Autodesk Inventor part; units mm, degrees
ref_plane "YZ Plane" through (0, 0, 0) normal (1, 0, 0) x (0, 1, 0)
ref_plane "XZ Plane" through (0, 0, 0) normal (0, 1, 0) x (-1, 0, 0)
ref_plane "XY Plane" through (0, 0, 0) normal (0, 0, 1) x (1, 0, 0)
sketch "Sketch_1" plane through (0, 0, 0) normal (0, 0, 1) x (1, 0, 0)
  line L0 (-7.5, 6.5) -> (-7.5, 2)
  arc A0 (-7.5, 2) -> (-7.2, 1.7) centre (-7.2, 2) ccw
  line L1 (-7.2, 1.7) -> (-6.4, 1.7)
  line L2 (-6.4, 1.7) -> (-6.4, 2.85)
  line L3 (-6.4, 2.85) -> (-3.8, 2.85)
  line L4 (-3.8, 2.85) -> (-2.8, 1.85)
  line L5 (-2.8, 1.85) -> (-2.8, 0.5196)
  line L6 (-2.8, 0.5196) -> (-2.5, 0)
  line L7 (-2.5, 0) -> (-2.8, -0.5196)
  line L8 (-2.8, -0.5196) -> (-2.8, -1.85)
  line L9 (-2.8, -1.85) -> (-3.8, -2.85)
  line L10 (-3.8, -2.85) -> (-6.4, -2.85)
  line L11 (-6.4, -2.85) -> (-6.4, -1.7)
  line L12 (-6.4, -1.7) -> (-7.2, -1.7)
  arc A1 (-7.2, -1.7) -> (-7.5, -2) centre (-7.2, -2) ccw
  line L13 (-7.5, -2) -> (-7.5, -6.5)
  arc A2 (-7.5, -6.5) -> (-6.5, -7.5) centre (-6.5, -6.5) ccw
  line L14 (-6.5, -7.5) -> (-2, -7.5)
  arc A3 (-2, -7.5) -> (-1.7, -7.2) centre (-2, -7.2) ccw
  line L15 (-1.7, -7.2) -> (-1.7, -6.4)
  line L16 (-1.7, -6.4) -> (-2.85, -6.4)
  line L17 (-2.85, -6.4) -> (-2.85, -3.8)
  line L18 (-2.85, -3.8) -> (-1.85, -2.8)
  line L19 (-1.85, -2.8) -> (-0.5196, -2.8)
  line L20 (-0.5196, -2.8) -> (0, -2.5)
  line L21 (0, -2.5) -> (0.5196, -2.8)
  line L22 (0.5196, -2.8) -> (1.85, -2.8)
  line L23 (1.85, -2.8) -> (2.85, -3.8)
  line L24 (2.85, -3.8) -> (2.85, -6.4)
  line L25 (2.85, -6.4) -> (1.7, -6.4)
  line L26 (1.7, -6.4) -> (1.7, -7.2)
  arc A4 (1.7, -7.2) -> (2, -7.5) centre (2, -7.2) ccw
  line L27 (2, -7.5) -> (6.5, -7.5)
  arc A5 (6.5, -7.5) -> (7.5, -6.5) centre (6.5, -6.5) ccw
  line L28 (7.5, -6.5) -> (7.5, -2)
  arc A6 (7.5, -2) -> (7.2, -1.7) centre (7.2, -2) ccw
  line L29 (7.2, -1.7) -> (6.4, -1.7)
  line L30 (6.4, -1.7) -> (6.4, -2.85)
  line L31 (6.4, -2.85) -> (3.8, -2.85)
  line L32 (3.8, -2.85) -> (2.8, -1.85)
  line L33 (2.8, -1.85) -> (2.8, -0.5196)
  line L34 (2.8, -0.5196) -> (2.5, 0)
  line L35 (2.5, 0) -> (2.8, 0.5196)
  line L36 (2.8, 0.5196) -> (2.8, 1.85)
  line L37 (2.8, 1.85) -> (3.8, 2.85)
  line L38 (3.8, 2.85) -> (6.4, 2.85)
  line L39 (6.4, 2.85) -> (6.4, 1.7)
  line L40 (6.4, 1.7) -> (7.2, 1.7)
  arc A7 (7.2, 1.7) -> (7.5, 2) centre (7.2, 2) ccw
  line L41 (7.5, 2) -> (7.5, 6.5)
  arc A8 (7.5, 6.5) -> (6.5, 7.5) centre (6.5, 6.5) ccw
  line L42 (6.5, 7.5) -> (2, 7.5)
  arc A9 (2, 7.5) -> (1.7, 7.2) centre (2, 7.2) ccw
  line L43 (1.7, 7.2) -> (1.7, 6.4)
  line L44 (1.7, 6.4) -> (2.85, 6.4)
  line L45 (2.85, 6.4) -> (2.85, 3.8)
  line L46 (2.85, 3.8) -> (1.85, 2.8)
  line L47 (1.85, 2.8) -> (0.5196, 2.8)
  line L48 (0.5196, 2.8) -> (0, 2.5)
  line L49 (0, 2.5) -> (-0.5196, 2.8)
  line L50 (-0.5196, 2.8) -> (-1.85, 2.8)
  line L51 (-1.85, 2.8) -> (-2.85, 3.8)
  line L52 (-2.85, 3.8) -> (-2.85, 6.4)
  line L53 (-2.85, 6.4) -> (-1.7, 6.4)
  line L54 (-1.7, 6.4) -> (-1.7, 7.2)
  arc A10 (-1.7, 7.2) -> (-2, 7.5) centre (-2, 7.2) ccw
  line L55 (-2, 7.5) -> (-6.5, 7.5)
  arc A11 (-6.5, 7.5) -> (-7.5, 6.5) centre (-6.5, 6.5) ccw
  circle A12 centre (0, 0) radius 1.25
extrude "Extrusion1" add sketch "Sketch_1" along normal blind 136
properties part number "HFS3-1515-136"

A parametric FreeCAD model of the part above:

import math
import FreeCAD as App
import Part
import Sketcher
Q = App.Units.Quantity

doc = App.newDocument("Part")
body = doc.addObject("PartDesign::Body", "Body")

# Sketch on XY plane
sketch1 = body.newObject("Sketcher::SketchObject", "Sketch")
sketch1.AttachmentSupport = (doc.getObject("XY_Plane"), [""])
sketch1.MapMode = "FlatFace"
sketch1.addGeometry([
    Part.ArcOfCircle(Part.Circle(App.Vector(-6.5, 6.5, 0), App.Vector(0, 0, 1), 1), math.radians(90), math.radians(180)),  # 0
    Part.LineSegment(App.Vector(-7.5, 6.5, 0), App.Vector(-7.5, 2, 0)),  # 1
    Part.ArcOfCircle(Part.Circle(App.Vector(-7.2, 2, 0), App.Vector(0, 0, 1), 0.3), math.radians(180), math.radians(270)),  # 2
    Part.LineSegment(App.Vector(-7.2, 1.7, 0), App.Vector(-6.4, 1.7, 0)),  # 3
    Part.LineSegment(App.Vector(-6.4, 1.7, 0), App.Vector(-6.4, 2.85, 0)),  # 4
    Part.LineSegment(App.Vector(-6.4, 2.85, 0), App.Vector(-3.8, 2.85, 0)),  # 5
    Part.LineSegment(App.Vector(-3.8, 2.85, 0), App.Vector(-2.8, 1.85, 0)),  # 6
    Part.LineSegment(App.Vector(-2.8, 1.85, 0), App.Vector(-2.8, 0.52, 0)),  # 7
    Part.LineSegment(App.Vector(-2.8, 0.52, 0), App.Vector(-2.5, 0, 0)),  # 8
    Part.LineSegment(App.Vector(-2.5, 0, 0), App.Vector(-2.8, -0.52, 0)),  # 9
    Part.LineSegment(App.Vector(-2.8, -0.52, 0), App.Vector(-2.8, -1.85, 0)),  # 10
    Part.LineSegment(App.Vector(-2.8, -1.85, 0), App.Vector(-3.8, -2.85, 0)),  # 11
    Part.LineSegment(App.Vector(-3.8, -2.85, 0), App.Vector(-6.4, -2.85, 0)),  # 12
    Part.LineSegment(App.Vector(-6.4, -2.85, 0), App.Vector(-6.4, -1.7, 0)),  # 13
    Part.LineSegment(App.Vector(-6.4, -1.7, 0), App.Vector(-7.2, -1.7, 0)),  # 14
    Part.ArcOfCircle(Part.Circle(App.Vector(-7.2, -2, 0), App.Vector(0, 0, 1), 0.3), math.radians(90), math.radians(180)),  # 15
    Part.LineSegment(App.Vector(-7.5, -2, 0), App.Vector(-7.5, -6.5, 0)),  # 16
    Part.ArcOfCircle(Part.Circle(App.Vector(-6.5, -6.5, 0), App.Vector(0, 0, 1), 1), math.radians(180), math.radians(270)),  # 17
    Part.LineSegment(App.Vector(-6.5, -7.5, 0), App.Vector(-2, -7.5, 0)),  # 18
    Part.ArcOfCircle(Part.Circle(App.Vector(-2, -7.2, 0), App.Vector(0, 0, 1), 0.3), math.radians(-90), math.radians(0)),  # 19
    Part.LineSegment(App.Vector(-1.7, -7.2, 0), App.Vector(-1.7, -6.4, 0)),  # 20
    Part.LineSegment(App.Vector(-1.7, -6.4, 0), App.Vector(-2.85, -6.4, 0)),  # 21
    Part.LineSegment(App.Vector(-2.85, -6.4, 0), App.Vector(-2.85, -3.8, 0)),  # 22
    Part.LineSegment(App.Vector(-2.85, -3.8, 0), App.Vector(-1.85, -2.8, 0)),  # 23
    Part.LineSegment(App.Vector(-1.85, -2.8, 0), App.Vector(-0.52, -2.8, 0)),  # 24
    Part.LineSegment(App.Vector(-0.52, -2.8, 0), App.Vector(0, -2.5, 0)),  # 25
    Part.LineSegment(App.Vector(0, -2.5, 0), App.Vector(0.52, -2.8, 0)),  # 26
    Part.LineSegment(App.Vector(0.52, -2.8, 0), App.Vector(1.85, -2.8, 0)),  # 27
    Part.LineSegment(App.Vector(1.85, -2.8, 0), App.Vector(2.85, -3.8, 0)),  # 28
    Part.LineSegment(App.Vector(2.85, -3.8, 0), App.Vector(2.85, -6.4, 0)),  # 29
    Part.LineSegment(App.Vector(2.85, -6.4, 0), App.Vector(1.7, -6.4, 0)),  # 30
    Part.LineSegment(App.Vector(1.7, -6.4, 0), App.Vector(1.7, -7.2, 0)),  # 31
    Part.ArcOfCircle(Part.Circle(App.Vector(2, -7.2, 0), App.Vector(0, 0, 1), 0.3), math.radians(180), math.radians(270)),  # 32
    Part.LineSegment(App.Vector(2, -7.5, 0), App.Vector(6.5, -7.5, 0)),  # 33
    Part.ArcOfCircle(Part.Circle(App.Vector(6.5, -6.5, 0), App.Vector(0, 0, 1), 1), math.radians(-90), math.radians(0)),  # 34
    Part.LineSegment(App.Vector(7.5, -6.5, 0), App.Vector(7.5, -2, 0)),  # 35
    Part.ArcOfCircle(Part.Circle(App.Vector(7.2, -2, 0), App.Vector(0, 0, 1), 0.3), math.radians(0), math.radians(90)),  # 36
    Part.LineSegment(App.Vector(7.2, -1.7, 0), App.Vector(6.4, -1.7, 0)),  # 37
    Part.LineSegment(App.Vector(6.4, -1.7, 0), App.Vector(6.4, -2.85, 0)),  # 38
    Part.LineSegment(App.Vector(6.4, -2.85, 0), App.Vector(3.8, -2.85, 0)),  # 39
    Part.LineSegment(App.Vector(3.8, -2.85, 0), App.Vector(2.8, -1.85, 0)),  # 40
    Part.LineSegment(App.Vector(2.8, -1.85, 0), App.Vector(2.8, -0.52, 0)),  # 41
    Part.LineSegment(App.Vector(2.8, -0.52, 0), App.Vector(2.5, 0, 0)),  # 42
    Part.LineSegment(App.Vector(2.5, 0, 0), App.Vector(2.8, 0.52, 0)),  # 43
    Part.LineSegment(App.Vector(2.8, 0.52, 0), App.Vector(2.8, 1.85, 0)),  # 44
    Part.LineSegment(App.Vector(2.8, 1.85, 0), App.Vector(3.8, 2.85, 0)),  # 45
    Part.LineSegment(App.Vector(3.8, 2.85, 0), App.Vector(6.4, 2.85, 0)),  # 46
    Part.LineSegment(App.Vector(6.4, 2.85, 0), App.Vector(6.4, 1.7, 0)),  # 47
    Part.LineSegment(App.Vector(6.4, 1.7, 0), App.Vector(7.2, 1.7, 0)),  # 48
    Part.ArcOfCircle(Part.Circle(App.Vector(7.2, 2, 0), App.Vector(0, 0, 1), 0.3), math.radians(-90), math.radians(0)),  # 49
    Part.LineSegment(App.Vector(7.5, 2, 0), App.Vector(7.5, 6.5, 0)),  # 50
    Part.ArcOfCircle(Part.Circle(App.Vector(6.5, 6.5, 0), App.Vector(0, 0, 1), 1), math.radians(0), math.radians(90)),  # 51
    Part.LineSegment(App.Vector(6.5, 7.5, 0), App.Vector(2, 7.5, 0)),  # 52
    Part.ArcOfCircle(Part.Circle(App.Vector(2, 7.2, 0), App.Vector(0, 0, 1), 0.3), math.radians(90), math.radians(180)),  # 53
    Part.LineSegment(App.Vector(1.7, 7.2, 0), App.Vector(1.7, 6.4, 0)),  # 54
    Part.LineSegment(App.Vector(1.7, 6.4, 0), App.Vector(2.85, 6.4, 0)),  # 55
    Part.LineSegment(App.Vector(2.85, 6.4, 0), App.Vector(2.85, 3.8, 0)),  # 56
    Part.LineSegment(App.Vector(2.85, 3.8, 0), App.Vector(1.85, 2.8, 0)),  # 57
    Part.LineSegment(App.Vector(1.85, 2.8, 0), App.Vector(0.52, 2.8, 0)),  # 58
    Part.LineSegment(App.Vector(0.52, 2.8, 0), App.Vector(0, 2.5, 0)),  # 59
    Part.LineSegment(App.Vector(0, 2.5, 0), App.Vector(-0.52, 2.8, 0)),  # 60
    Part.LineSegment(App.Vector(-0.52, 2.8, 0), App.Vector(-1.85, 2.8, 0)),  # 61
    Part.LineSegment(App.Vector(-1.85, 2.8, 0), App.Vector(-2.85, 3.8, 0)),  # 62
    Part.LineSegment(App.Vector(-2.85, 3.8, 0), App.Vector(-2.85, 6.4, 0)),  # 63
    Part.LineSegment(App.Vector(-2.85, 6.4, 0), App.Vector(-1.7, 6.4, 0)),  # 64
    Part.LineSegment(App.Vector(-1.7, 6.4, 0), App.Vector(-1.7, 7.2, 0)),  # 65
    Part.ArcOfCircle(Part.Circle(App.Vector(-2, 7.2, 0), App.Vector(0, 0, 1), 0.3), math.radians(0), math.radians(90)),  # 66
    Part.LineSegment(App.Vector(-2, 7.5, 0), App.Vector(-6.5, 7.5, 0)),  # 67
    Part.Circle(App.Vector(0, 0, 0), App.Vector(0, 0, 1), 1.25),  # 68
], False)
sketch1.addConstraint([
    Sketcher.Constraint("Tangent", 0, 2, 1, 1),
    Sketcher.Constraint("Tangent", 1, 2, 2, 1),
    Sketcher.Constraint("Tangent", 2, 2, 3, 1),
    Sketcher.Constraint("Coincident", 3, 2, 4, 1),
    Sketcher.Constraint("Coincident", 4, 2, 5, 1),
    Sketcher.Constraint("Coincident", 5, 2, 6, 1),
    Sketcher.Constraint("Coincident", 6, 2, 7, 1),
    Sketcher.Constraint("Coincident", 7, 2, 8, 1),
    Sketcher.Constraint("Coincident", 8, 2, 9, 1),
    Sketcher.Constraint("Coincident", 9, 2, 10, 1),
    Sketcher.Constraint("Coincident", 10, 2, 11, 1),
    Sketcher.Constraint("Coincident", 11, 2, 12, 1),
    Sketcher.Constraint("Coincident", 12, 2, 13, 1),
    Sketcher.Constraint("Coincident", 13, 2, 14, 1),
    Sketcher.Constraint("Tangent", 14, 2, 15, 1),
    Sketcher.Constraint("Tangent", 15, 2, 16, 1),
    Sketcher.Constraint("Tangent", 16, 2, 17, 1),
    Sketcher.Constraint("Tangent", 17, 2, 18, 1),
    Sketcher.Constraint("Tangent", 18, 2, 19, 1),
    Sketcher.Constraint("Tangent", 19, 2, 20, 1),
    Sketcher.Constraint("Coincident", 20, 2, 21, 1),
    Sketcher.Constraint("Coincident", 21, 2, 22, 1),
    Sketcher.Constraint("Coincident", 22, 2, 23, 1),
    Sketcher.Constraint("Coincident", 23, 2, 24, 1),
    Sketcher.Constraint("Coincident", 24, 2, 25, 1),
    Sketcher.Constraint("Coincident", 25, 2, 26, 1),
    Sketcher.Constraint("Coincident", 26, 2, 27, 1),
    Sketcher.Constraint("Coincident", 27, 2, 28, 1),
    Sketcher.Constraint("Coincident", 28, 2, 29, 1),
    Sketcher.Constraint("Coincident", 29, 2, 30, 1),
    Sketcher.Constraint("Coincident", 30, 2, 31, 1),
    Sketcher.Constraint("Tangent", 31, 2, 32, 1),
    Sketcher.Constraint("Tangent", 32, 2, 33, 1),
    Sketcher.Constraint("Tangent", 33, 2, 34, 1),
    Sketcher.Constraint("Tangent", 34, 2, 35, 1),
    Sketcher.Constraint("Tangent", 35, 2, 36, 1),
    Sketcher.Constraint("Tangent", 36, 2, 37, 1),
    Sketcher.Constraint("Coincident", 37, 2, 38, 1),
    Sketcher.Constraint("Coincident", 38, 2, 39, 1),
    Sketcher.Constraint("Coincident", 39, 2, 40, 1),
    Sketcher.Constraint("Coincident", 40, 2, 41, 1),
    Sketcher.Constraint("Coincident", 41, 2, 42, 1),
    Sketcher.Constraint("Coincident", 42, 2, 43, 1),
    Sketcher.Constraint("Coincident", 43, 2, 44, 1),
    Sketcher.Constraint("Coincident", 44, 2, 45, 1),
    Sketcher.Constraint("Coincident", 45, 2, 46, 1),
    Sketcher.Constraint("Coincident", 46, 2, 47, 1),
    Sketcher.Constraint("Coincident", 47, 2, 48, 1),
    Sketcher.Constraint("Tangent", 48, 2, 49, 1),
    Sketcher.Constraint("Tangent", 49, 2, 50, 1),
    Sketcher.Constraint("Tangent", 50, 2, 51, 1),
    Sketcher.Constraint("Tangent", 51, 2, 52, 1),
    Sketcher.Constraint("Tangent", 52, 2, 53, 1),
    Sketcher.Constraint("Tangent", 53, 2, 54, 1),
    Sketcher.Constraint("Coincident", 54, 2, 55, 1),
    Sketcher.Constraint("Coincident", 55, 2, 56, 1),
    Sketcher.Constraint("Coincident", 56, 2, 57, 1),
    Sketcher.Constraint("Coincident", 57, 2, 58, 1),
    Sketcher.Constraint("Coincident", 58, 2, 59, 1),
    Sketcher.Constraint("Coincident", 59, 2, 60, 1),
    Sketcher.Constraint("Coincident", 60, 2, 61, 1),
    Sketcher.Constraint("Coincident", 61, 2, 62, 1),
    Sketcher.Constraint("Coincident", 62, 2, 63, 1),
    Sketcher.Constraint("Coincident", 63, 2, 64, 1),
    Sketcher.Constraint("Coincident", 64, 2, 65, 1),
    Sketcher.Constraint("Tangent", 65, 2, 66, 1),
    Sketcher.Constraint("Tangent", 66, 2, 67, 1),
    Sketcher.Constraint("Tangent", 67, 2, 0, 1),
    Sketcher.Constraint("Vertical", 1),
    Sketcher.Constraint("Horizontal", 3),
    Sketcher.Constraint("Vertical", 4),
    Sketcher.Constraint("Horizontal", 5),
    Sketcher.Constraint("Vertical", 7),
    Sketcher.Constraint("Vertical", 10),
    Sketcher.Constraint("Horizontal", 12),
    Sketcher.Constraint("Vertical", 13),
    Sketcher.Constraint("Horizontal", 14),
    Sketcher.Constraint("Vertical", 16),
    Sketcher.Constraint("Horizontal", 18),
    Sketcher.Constraint("Vertical", 20),
    Sketcher.Constraint("Horizontal", 21),
    Sketcher.Constraint("Vertical", 22),
    Sketcher.Constraint("Horizontal", 24),
    Sketcher.Constraint("Horizontal", 27),
    Sketcher.Constraint("Vertical", 29),
    Sketcher.Constraint("Horizontal", 30),
    Sketcher.Constraint("Vertical", 31),
    Sketcher.Constraint("Horizontal", 33),
    Sketcher.Constraint("Vertical", 35),
    Sketcher.Constraint("Horizontal", 37),
    Sketcher.Constraint("Vertical", 38),
    Sketcher.Constraint("Horizontal", 39),
    Sketcher.Constraint("Vertical", 41),
    Sketcher.Constraint("Vertical", 44),
    Sketcher.Constraint("Horizontal", 46),
    Sketcher.Constraint("Vertical", 47),
    Sketcher.Constraint("Horizontal", 48),
    Sketcher.Constraint("Vertical", 50),
    Sketcher.Constraint("Horizontal", 52),
    Sketcher.Constraint("Vertical", 54),
    Sketcher.Constraint("Horizontal", 55),
    Sketcher.Constraint("Vertical", 56),
    Sketcher.Constraint("Horizontal", 58),
    Sketcher.Constraint("Horizontal", 61),
    Sketcher.Constraint("Vertical", 63),
    Sketcher.Constraint("Horizontal", 64),
    Sketcher.Constraint("Vertical", 65),
    Sketcher.Constraint("Horizontal", 67),
    Sketcher.Constraint("Coincident", 68, 3, -1, 1),
    Sketcher.Constraint("Equal", 2, 15),
    Sketcher.Constraint("Equal", 0, 17),
    Sketcher.Constraint("Equal", 15, 19),
    Sketcher.Constraint("Equal", 19, 32),
    Sketcher.Constraint("Equal", 17, 34),
    Sketcher.Constraint("Equal", 32, 36),
    Sketcher.Constraint("Equal", 36, 49),
    Sketcher.Constraint("Equal", 34, 51),
    Sketcher.Constraint("Equal", 49, 53),
    Sketcher.Constraint("Equal", 53, 66),
    Sketcher.Constraint("Symmetric", 0, 3, 34, 3, -1, 1),
    Sketcher.Constraint("Symmetric", 15, 3, 49, 3, -1, 1),
    Sketcher.Constraint("Symmetric", 19, 3, 53, 3, -1, 1),
    Sketcher.Constraint("Symmetric", 3, 2, 37, 2, -1, 1),
    Sketcher.Constraint("Symmetric", 5, 2, 39, 2, -1, 1),
    Sketcher.Constraint("Symmetric", 6, 2, 40, 2, -1, 1),
    Sketcher.Constraint("Symmetric", 8, 2, 42, 2, -1, 1),
    Sketcher.Constraint("Symmetric", 9, 2, 43, 2, -1, 1),
    Sketcher.Constraint("Symmetric", 11, 2, 45, 2, -1, 1),
    Sketcher.Constraint("Symmetric", 21, 2, 55, 2, -1, 1),
    Sketcher.Constraint("Symmetric", 23, 2, 57, 2, -1, 1),
    Sketcher.Constraint("Symmetric", 25, 2, 59, 2, -1, 1),
    Sketcher.Constraint("Symmetric", 26, 2, 60, 2, -1, 1),
    Sketcher.Constraint("Symmetric", 28, 2, 62, 2, -1, 1),
    Sketcher.Constraint("Symmetric", 30, 2, 64, 2, -1, 1),
    Sketcher.Constraint("Symmetric", 19, 3, 32, 3, -2),
    Sketcher.Constraint("Symmetric", 15, 3, 36, 3, -2),
    Sketcher.Constraint("Symmetric", 24, 2, 26, 2, -2),
    Sketcher.Constraint("Symmetric", 22, 2, 28, 2, -2),
    Sketcher.Constraint("Symmetric", 12, 2, 38, 2, -2),
    Sketcher.Constraint("Symmetric", 10, 2, 40, 2, -2),
    Sketcher.Constraint("PointOnObject", 8, 2, -1),
    Sketcher.Constraint("PointOnObject", 25, 2, -2),
    Sketcher.Constraint("Perpendicular", 6, 11),
    Sketcher.Constraint("Parallel", 11, 23),
    Sketcher.Constraint("Perpendicular", 8, 25),
    Sketcher.Constraint("Perpendicular", 9, 26),
    Sketcher.Constraint("Perpendicular", 23, 28),
    Sketcher.Constraint("Perpendicular", 25, 42),
    Sketcher.Constraint("Perpendicular", 40, 45),
    Sketcher.Constraint("Parallel", 45, 57),
    Sketcher.Constraint("Perpendicular", 42, 59),
    Sketcher.Constraint("Perpendicular", 57, 62),
    Sketcher.Constraint("Horizontal", 21, 2, 29, 2),
    Sketcher.Constraint("Vertical", 5, 2, 11, 2),
    Sketcher.Constraint("Vertical", 38, 2, 46, 2),
    Sketcher.Constraint("Equal", 67, 1),
    Sketcher.Constraint("Equal", 64, 4),
    Sketcher.Constraint("Equal", 61, 7),
    Sketcher.Constraint("Equal", 48, 20),
    Sketcher.Constraint("Equal", 46, 22),
    Sketcher.Constraint("Equal", 11, 23),
    Sketcher.Constraint("Equal", 9, 25),
    Sketcher.Constraint("Radius", 0, 1.0),
    Sketcher.Constraint("Diameter", 68, 2.5),
    Sketcher.Constraint("Radius", 2, 0.3),
    Sketcher.Constraint("Angle", 8, Q("-59.9993 deg")),
    Sketcher.Constraint("DistanceX", 3, 1, 3, 2, 0.8),
    Sketcher.Constraint("DistanceX", 5, 1, 5, 2, 2.6),
    Sketcher.Constraint("DistanceX", 18, 1, 18, 2, 4.5),
    Sketcher.Constraint("DistanceY", -1, 1, 2, 3, 2.0),
    Sketcher.Constraint("Distance", 8, 0.6),
    Sketcher.Constraint("DistanceX", 21, 2, 21, 1, 1.15),
    Sketcher.Constraint("DistanceX", 6, 2, -1, 1, 2.8),
])
pad1 = body.newObject("PartDesign::Pad", "Pad")
pad1.Profile = sketch1
pad1.Length = 136

doc.recompute()
